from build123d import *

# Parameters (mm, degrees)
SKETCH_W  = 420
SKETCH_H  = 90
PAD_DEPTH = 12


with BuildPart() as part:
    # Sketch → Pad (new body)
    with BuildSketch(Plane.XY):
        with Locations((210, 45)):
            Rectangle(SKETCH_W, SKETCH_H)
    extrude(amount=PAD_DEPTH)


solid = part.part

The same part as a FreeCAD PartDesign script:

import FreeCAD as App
import Part
import Sketcher

V = App.Vector

doc = App.newDocument("Part")
body = doc.addObject("PartDesign::Body", "Body")

sketch1 = body.newObject("Sketcher::SketchObject", "Sketch")
sketch1.AttachmentSupport = (doc.getObject("XY_Plane"), [""])
sketch1.MapMode = "FlatFace"
sketch1.addGeometry([
    Part.LineSegment(V(0, 90, 0), V(0, 0, 0)),
    Part.LineSegment(V(0, 0, 0), V(420, 0, 0)),
    Part.LineSegment(V(420, 0, 0), V(420, 90, 0)),
    Part.LineSegment(V(420, 90, 0), V(0, 90, 0)),
], False)
sketch1.addConstraint([
    Sketcher.Constraint("Coincident", 0, 2, 1, 1),
    Sketcher.Constraint("Coincident", 1, 2, 2, 1),
    Sketcher.Constraint("Coincident", 2, 2, 3, 1),
    Sketcher.Constraint("Coincident", 3, 2, 0, 1),
    Sketcher.Constraint("Vertical", 0),
    Sketcher.Constraint("Horizontal", 1),
    Sketcher.Constraint("Vertical", 2),
    Sketcher.Constraint("Horizontal", 3),
    Sketcher.Constraint("Coincident", 0, 2, -1, 1),
    Sketcher.Constraint("DistanceX", 1, 1, 1, 2, 420.0),
    Sketcher.Constraint("DistanceY", 0, 2, 0, 1, 90.0),
])
pad1 = body.newObject("PartDesign::Pad", "Pad")
pad1.Profile = sketch1
pad1.Length = 12

doc.recompute()
